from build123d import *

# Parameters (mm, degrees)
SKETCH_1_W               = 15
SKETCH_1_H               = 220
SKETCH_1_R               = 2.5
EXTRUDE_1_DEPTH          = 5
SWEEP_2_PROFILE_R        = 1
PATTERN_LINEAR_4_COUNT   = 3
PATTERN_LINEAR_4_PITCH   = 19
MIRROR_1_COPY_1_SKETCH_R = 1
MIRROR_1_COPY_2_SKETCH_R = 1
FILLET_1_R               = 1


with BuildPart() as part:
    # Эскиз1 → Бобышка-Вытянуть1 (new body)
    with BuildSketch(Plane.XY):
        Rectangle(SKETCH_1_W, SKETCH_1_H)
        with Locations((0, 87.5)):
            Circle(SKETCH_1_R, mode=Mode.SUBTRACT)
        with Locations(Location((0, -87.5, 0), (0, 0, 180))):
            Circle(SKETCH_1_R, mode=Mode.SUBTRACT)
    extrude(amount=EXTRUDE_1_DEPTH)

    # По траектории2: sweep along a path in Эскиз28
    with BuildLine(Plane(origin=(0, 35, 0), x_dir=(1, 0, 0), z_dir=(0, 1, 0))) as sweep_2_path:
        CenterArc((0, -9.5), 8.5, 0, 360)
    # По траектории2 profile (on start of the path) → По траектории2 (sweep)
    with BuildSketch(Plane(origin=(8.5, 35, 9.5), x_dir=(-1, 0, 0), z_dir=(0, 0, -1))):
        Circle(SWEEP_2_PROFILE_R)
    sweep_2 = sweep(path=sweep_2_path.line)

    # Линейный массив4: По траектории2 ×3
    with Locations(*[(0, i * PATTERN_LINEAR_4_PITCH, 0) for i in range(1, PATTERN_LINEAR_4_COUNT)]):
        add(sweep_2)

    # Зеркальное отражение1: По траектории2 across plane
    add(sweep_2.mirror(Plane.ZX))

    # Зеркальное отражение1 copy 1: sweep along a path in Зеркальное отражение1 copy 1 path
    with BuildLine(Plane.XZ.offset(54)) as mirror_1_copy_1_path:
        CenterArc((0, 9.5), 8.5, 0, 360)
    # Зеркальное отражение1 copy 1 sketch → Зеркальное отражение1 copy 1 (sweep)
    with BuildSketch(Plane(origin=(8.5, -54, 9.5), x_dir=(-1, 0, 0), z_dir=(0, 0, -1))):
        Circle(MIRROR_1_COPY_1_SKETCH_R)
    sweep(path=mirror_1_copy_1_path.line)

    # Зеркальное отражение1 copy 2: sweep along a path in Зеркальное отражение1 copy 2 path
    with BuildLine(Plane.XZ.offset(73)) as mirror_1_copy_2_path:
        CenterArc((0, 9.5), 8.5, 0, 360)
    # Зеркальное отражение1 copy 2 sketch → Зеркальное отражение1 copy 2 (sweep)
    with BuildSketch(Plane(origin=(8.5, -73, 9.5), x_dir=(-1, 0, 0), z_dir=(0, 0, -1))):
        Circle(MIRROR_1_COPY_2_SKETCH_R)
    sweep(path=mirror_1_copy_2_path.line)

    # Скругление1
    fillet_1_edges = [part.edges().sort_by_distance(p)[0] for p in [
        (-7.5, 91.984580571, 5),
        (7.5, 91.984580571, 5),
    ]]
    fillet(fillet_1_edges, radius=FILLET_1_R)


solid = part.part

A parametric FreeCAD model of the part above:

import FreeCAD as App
import Part
import Sketcher
Q = App.Units.Quantity


def edges_at(feature, points):
    """Names of the edges that pass closest to the given points."""
    edges = feature.Shape.Edges
    near = lambda p: min(range(len(edges)), key=lambda i: edges[i].distToShape(Part.Vertex(*p))[0])
    return sorted({f"Edge{near(p) + 1}" for p in points})


def add_polygon(sketch, points):
    """Adds a closed chain of lines whose ends are joined by coincident constraints."""
    first, n = sketch.GeometryCount, len(points)
    for a, b in zip(points, points[1:] + points[:1]):
        sketch.addGeometry(Part.LineSegment(App.Vector(*a, 0), App.Vector(*b, 0)), False)
    for i in range(n):
        sketch.addConstraint(Sketcher.Constraint("Coincident", first + i, 2, first + (i + 1) % n, 1))

doc = App.newDocument("Part")
params = doc.addObject("Spreadsheet::Sheet", "Params")
for row, (alias, value) in enumerate([
    ("sketch1_diameter", "5 mm"),
    ("sketch1_width", "15 mm"),
    ("sketch1_height", "220 mm"),
    ("pad1_length", "5 mm"),
    ("sketch2_diameter", "2 mm"),
    ("sketch3_diameter", "17 mm"),
    ("linearpattern_pitch", "19 mm"),
    ("sketch4_diameter", "2 mm"),
    ("sketch5_diameter", "17 mm"),
    ("sketch6_diameter", "2 mm"),
    ("sketch7_diameter", "17 mm"),
    ("fillet_radius", "1 mm"),
], start=1):
    params.set(f"A{row}", alias)
    params.set(f"B{row}", "=" + value)
    params.setAlias(f"B{row}", alias)

body = doc.addObject("PartDesign::Body", "Body")

sketch1 = body.newObject("Sketcher::SketchObject", "Sketch")
sketch1.AttachmentSupport = (doc.getObject("XY_Plane"), [""])
sketch1.MapMode = "FlatFace"
add_polygon(sketch1, [(-7.5, 110), (-7.5, -110), (7.5, -110), (7.5, 110)])
sketch1.addGeometry(Part.Circle(App.Vector(0, -87.5, 0), App.Vector(0, 0, 1), 2.5), False)
sketch1.addGeometry(Part.Circle(App.Vector(0, 87.5, 0), App.Vector(0, 0, 1), 2.5), False)
sketch1.addConstraint(Sketcher.Constraint("Vertical", 0))
sketch1.addConstraint(Sketcher.Constraint("Horizontal", 1))
sketch1.addConstraint(Sketcher.Constraint("Vertical", 2))
sketch1.addConstraint(Sketcher.Constraint("Horizontal", 3))
sketch1.addConstraint(Sketcher.Constraint("Equal", 4, 5))
sketch1.addConstraint(Sketcher.Constraint("Symmetric", 4, 3, 5, 3, -1, 1))
sketch1.addConstraint(Sketcher.Constraint("Symmetric", 0, 2, 2, 2, -1, 1))
sketch1.addConstraint(Sketcher.Constraint("PointOnObject", 4, 3, -2))
sketch1.addConstraint(Sketcher.Constraint("Diameter", 4, Q("5 mm")))
sketch1.addConstraint(Sketcher.Constraint("DistanceX", 1, 1, 1, 2, Q("15 mm")))
sketch1.addConstraint(Sketcher.Constraint("DistanceY", 0, 2, 0, 1, Q("220 mm")))
sketch1.addConstraint(Sketcher.Constraint("DistanceY", 4, 3, 5, 3, Q("175 mm")))
sketch1.setExpression("Constraints[12]", "Params.sketch1_diameter")
sketch1.setExpression("Constraints[13]", "Params.sketch1_width")
sketch1.setExpression("Constraints[14]", "Params.sketch1_height")
pad1 = body.newObject("PartDesign::Pad", "Pad")
pad1.Profile = sketch1
pad1.setExpression("Length", "Params.pad1_length")

sketch2 = body.newObject("Sketcher::SketchObject", "Sketch001")
sketch2.AttachmentSupport = (doc.getObject("XY_Plane"), [""])
sketch2.MapMode = "FlatFace"
sketch2.AttachmentOffset = App.Placement(App.Vector(0, 0, 9.5), App.Rotation())
sketch2.addGeometry(Part.Circle(App.Vector(8.5, 35, 0), App.Vector(0, 0, 1), 1), False)
sketch2.addConstraint(Sketcher.Constraint("Diameter", 0, Q("2 mm")))
sketch2.addConstraint(Sketcher.Constraint("DistanceY", -1, 1, 0, 3, Q("35 mm")))
sketch2.addConstraint(Sketcher.Constraint("DistanceX", -1, 1, 0, 3, Q("8.5 mm")))
sketch2.setExpression("Constraints[0]", "Params.sketch2_diameter")

sketch3 = body.newObject("Sketcher::SketchObject", "Sketch002")
sketch3.AttachmentSupport = (doc.getObject("XZ_Plane"), [""])
sketch3.MapMode = "FlatFace"
sketch3.AttachmentOffset = App.Placement(App.Vector(0, 0, -35), App.Rotation())
sketch3.addGeometry(Part.Circle(App.Vector(0, 10, 0), App.Vector(0, 0, 1), 8), False)
sketch3.addConstraint(Sketcher.Constraint("PointOnObject", 0, 3, -2))
sketch3.addConstraint(Sketcher.Constraint("Diameter", 0, Q("17 mm")))
sketch3.addConstraint(Sketcher.Constraint("DistanceY", -1, 1, 0, 3, Q("9.5 mm")))
sketch3.setExpression("Constraints[1]", "Params.sketch3_diameter")
doc.recompute()

additivepipe = body.newObject("PartDesign::AdditivePipe", "AdditivePipe")
additivepipe.Profile = sketch2
additivepipe.Spine = (sketch3, ["Edge1"])
doc.recompute()

linearpattern = body.newObject("PartDesign::LinearPattern", "LinearPattern")
linearpattern.Originals = [additivepipe]
linearpattern.Direction = (doc.getObject("Y_Axis"), [""])
linearpattern.Mode = "offset"
linearpattern.setExpression("Offset", "Params.linearpattern_pitch")
linearpattern.Occurrences = 3
body.Tip = linearpattern
doc.recompute()

mirrored = body.newObject("PartDesign::Mirrored", "Mirrored")
mirrored.Originals = [additivepipe]
mirrored.MirrorPlane = (doc.getObject("XZ_Plane"), [""])
body.Tip = mirrored

sketch4 = body.newObject("Sketcher::SketchObject", "Sketch003")
sketch4.AttachmentSupport = (doc.getObject("XY_Plane"), [""])
sketch4.MapMode = "FlatFace"
sketch4.AttachmentOffset = App.Placement(App.Vector(0, 0, 9.5), App.Rotation())
sketch4.addGeometry(Part.Circle(App.Vector(8.5, -54, 0), App.Vector(0, 0, 1), 1), False)
sketch4.addConstraint(Sketcher.Constraint("Diameter", 0, Q("2 mm")))
sketch4.addConstraint(Sketcher.Constraint("DistanceY", 0, 3, -1, 1, Q("54 mm")))
sketch4.addConstraint(Sketcher.Constraint("DistanceX", -1, 1, 0, 3, Q("8.5 mm")))
sketch4.setExpression("Constraints[0]", "Params.sketch4_diameter")

sketch5 = body.newObject("Sketcher::SketchObject", "Sketch004")
sketch5.AttachmentSupport = (doc.getObject("XZ_Plane"), [""])
sketch5.MapMode = "FlatFace"
sketch5.AttachmentOffset = App.Placement(App.Vector(0, 0, 54), App.Rotation())
sketch5.addGeometry(Part.Circle(App.Vector(0, 10, 0), App.Vector(0, 0, 1), 8), False)
sketch5.addConstraint(Sketcher.Constraint("PointOnObject", 0, 3, -2))
sketch5.addConstraint(Sketcher.Constraint("Diameter", 0, Q("17 mm")))
sketch5.addConstraint(Sketcher.Constraint("DistanceY", -1, 1, 0, 3, Q("9.5 mm")))
sketch5.setExpression("Constraints[1]", "Params.sketch5_diameter")
doc.recompute()

additivepipe2 = body.newObject("PartDesign::AdditivePipe", "AdditivePipe001")
additivepipe2.Profile = sketch4
additivepipe2.Spine = (sketch5, ["Edge1"])

sketch6 = body.newObject("Sketcher::SketchObject", "Sketch005")
sketch6.AttachmentSupport = (doc.getObject("XY_Plane"), [""])
sketch6.MapMode = "FlatFace"
sketch6.AttachmentOffset = App.Placement(App.Vector(0, 0, 9.5), App.Rotation())
sketch6.addGeometry(Part.Circle(App.Vector(8.5, -73, 0), App.Vector(0, 0, 1), 1), False)
sketch6.addConstraint(Sketcher.Constraint("Diameter", 0, Q("2 mm")))
sketch6.addConstraint(Sketcher.Constraint("DistanceY", 0, 3, -1, 1, Q("73 mm")))
sketch6.addConstraint(Sketcher.Constraint("DistanceX", -1, 1, 0, 3, Q("8.5 mm")))
sketch6.setExpression("Constraints[0]", "Params.sketch6_diameter")

sketch7 = body.newObject("Sketcher::SketchObject", "Sketch006")
sketch7.AttachmentSupport = (doc.getObject("XZ_Plane"), [""])
sketch7.MapMode = "FlatFace"
sketch7.AttachmentOffset = App.Placement(App.Vector(0, 0, 73), App.Rotation())
sketch7.addGeometry(Part.Circle(App.Vector(0, 10, 0), App.Vector(0, 0, 1), 8), False)
sketch7.addConstraint(Sketcher.Constraint("PointOnObject", 0, 3, -2))
sketch7.addConstraint(Sketcher.Constraint("Diameter", 0, Q("17 mm")))
sketch7.addConstraint(Sketcher.Constraint("DistanceY", -1, 1, 0, 3, Q("9.5 mm")))
sketch7.setExpression("Constraints[1]", "Params.sketch7_diameter")
doc.recompute()

additivepipe3 = body.newObject("PartDesign::AdditivePipe", "AdditivePipe002")
additivepipe3.Profile = sketch6
additivepipe3.Spine = (sketch7, ["Edge1"])
doc.recompute()

fillet = body.newObject("PartDesign::Fillet", "Fillet")
fillet.Base = (additivepipe3, edges_at(additivepipe3, [(-7.5, 91.985, 5), (7.5, 91.985, 5)]))
fillet.setExpression("Radius", "Params.fillet_radius")

doc.recompute()
